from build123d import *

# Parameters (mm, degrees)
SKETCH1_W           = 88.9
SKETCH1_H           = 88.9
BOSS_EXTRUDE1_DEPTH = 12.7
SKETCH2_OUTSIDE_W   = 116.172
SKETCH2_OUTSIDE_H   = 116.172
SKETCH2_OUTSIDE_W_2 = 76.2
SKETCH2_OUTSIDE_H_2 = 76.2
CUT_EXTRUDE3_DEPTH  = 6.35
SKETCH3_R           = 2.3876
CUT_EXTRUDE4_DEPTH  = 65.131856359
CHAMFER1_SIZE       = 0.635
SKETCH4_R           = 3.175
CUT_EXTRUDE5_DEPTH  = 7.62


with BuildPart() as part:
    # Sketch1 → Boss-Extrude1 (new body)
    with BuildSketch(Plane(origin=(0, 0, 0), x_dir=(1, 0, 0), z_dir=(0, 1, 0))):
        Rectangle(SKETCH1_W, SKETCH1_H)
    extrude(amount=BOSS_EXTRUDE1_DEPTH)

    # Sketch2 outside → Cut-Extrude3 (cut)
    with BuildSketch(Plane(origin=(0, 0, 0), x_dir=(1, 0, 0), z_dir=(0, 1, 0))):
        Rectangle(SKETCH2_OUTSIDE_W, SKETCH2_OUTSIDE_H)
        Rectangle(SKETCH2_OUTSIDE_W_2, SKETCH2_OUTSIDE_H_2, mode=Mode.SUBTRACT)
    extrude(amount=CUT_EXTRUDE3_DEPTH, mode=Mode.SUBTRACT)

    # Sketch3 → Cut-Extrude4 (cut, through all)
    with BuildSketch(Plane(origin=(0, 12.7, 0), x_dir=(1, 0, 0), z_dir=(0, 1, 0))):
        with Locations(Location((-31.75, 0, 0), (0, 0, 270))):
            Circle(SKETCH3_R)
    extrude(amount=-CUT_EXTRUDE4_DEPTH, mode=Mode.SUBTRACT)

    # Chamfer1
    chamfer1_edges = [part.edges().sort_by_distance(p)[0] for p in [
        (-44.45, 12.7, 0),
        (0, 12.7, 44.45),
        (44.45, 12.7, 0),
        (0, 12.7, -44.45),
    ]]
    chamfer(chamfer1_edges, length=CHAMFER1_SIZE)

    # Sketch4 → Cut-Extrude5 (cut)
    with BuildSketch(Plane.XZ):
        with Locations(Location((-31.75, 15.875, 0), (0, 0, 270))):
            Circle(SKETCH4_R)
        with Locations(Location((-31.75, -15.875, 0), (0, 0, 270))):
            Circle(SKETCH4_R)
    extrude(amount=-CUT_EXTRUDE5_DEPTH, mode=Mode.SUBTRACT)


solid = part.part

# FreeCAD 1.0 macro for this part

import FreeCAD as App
import Part
import Sketcher
Q = App.Units.Quantity


def edges_at(feature, points):
    """Names of the edges that pass closest to the given points."""
    edges = feature.Shape.Edges
    near = lambda p: min(range(len(edges)), key=lambda i: edges[i].distToShape(Part.Vertex(*p))[0])
    return sorted({f"Edge{near(p) + 1}" for p in points})


def add_polygon(sketch, points):
    """Adds a closed chain of lines whose ends are joined by coincident constraints."""
    first, n = sketch.GeometryCount, len(points)
    for a, b in zip(points, points[1:] + points[:1]):
        sketch.addGeometry(Part.LineSegment(App.Vector(*a, 0), App.Vector(*b, 0)), False)
    for i in range(n):
        sketch.addConstraint(Sketcher.Constraint("Coincident", first + i, 2, first + (i + 1) % n, 1))

doc = App.newDocument("Part")
body = doc.addObject("PartDesign::Body", "Body")

# Sketch on XZ plane
sketch1 = doc.addObject("Sketcher::SketchObject", "Sketch")
body.addObject(sketch1)
sketch1.AttachmentSupport = (doc.XZ_Plane, [""])
sketch1.MapMode = "FlatFace"
add_polygon(sketch1, [(-44.45, -44.45), (-44.45, 44.45), (44.45, 44.45), (44.45, -44.45)])  # lines 0-3
sketch1.addConstraint(Sketcher.Constraint("Vertical", 0))
sketch1.addConstraint(Sketcher.Constraint("Horizontal", 1))
sketch1.addConstraint(Sketcher.Constraint("Vertical", 2))
sketch1.addConstraint(Sketcher.Constraint("Horizontal", 3))
sketch1.addConstraint(Sketcher.Constraint("Symmetric", 0, 2, 2, 2, -1, 1))
sketch1.addConstraint(Sketcher.Constraint("Equal", 3, 0))
sketch1.addConstraint(Sketcher.Constraint("DistanceX", 1, 1, 1, 2, Q("3.5 in")))
pad1 = doc.addObject("PartDesign::Pad", "Pad")
body.addObject(pad1)
pad1.Profile = sketch1
pad1.Length = Q("0.5 in")
pad1.Reversed = True

# Sketch on XZ plane
sketch2 = doc.addObject("Sketcher::SketchObject", "Sketch001")
body.addObject(sketch2)
sketch2.AttachmentSupport = (doc.XZ_Plane, [""])
sketch2.MapMode = "FlatFace"
add_polygon(sketch2, [(-58.086, -58.086), (-58.086, 58.086), (58.086, 58.086), (58.086, -58.086)])  # lines 0-3
add_polygon(sketch2, [(38.1, 38.1), (-38.1, 38.1), (-38.1, -38.1), (38.1, -38.1)])  # lines 4-7
sketch2.addConstraint(Sketcher.Constraint("Vertical", 0))
sketch2.addConstraint(Sketcher.Constraint("Horizontal", 1))
sketch2.addConstraint(Sketcher.Constraint("Vertical", 2))
sketch2.addConstraint(Sketcher.Constraint("Horizontal", 3))
sketch2.addConstraint(Sketcher.Constraint("Horizontal", 4))
sketch2.addConstraint(Sketcher.Constraint("Vertical", 5))
sketch2.addConstraint(Sketcher.Constraint("Horizontal", 6))
sketch2.addConstraint(Sketcher.Constraint("Vertical", 7))
sketch2.addConstraint(Sketcher.Constraint("Symmetric", 0, 2, 2, 2, -1, 1))
sketch2.addConstraint(Sketcher.Constraint("Symmetric", 4, 2, 6, 2, -1, 1))
sketch2.addConstraint(Sketcher.Constraint("Equal", 3, 0))
sketch2.addConstraint(Sketcher.Constraint("Equal", 6, 5))
sketch2.addConstraint(Sketcher.Constraint("DistanceX", 4, 2, 4, 1, Q("3 in")))
sketch2.addConstraint(Sketcher.Constraint("DistanceX", 1, 1, 1, 2, Q("116.172 mm")))
pocket1 = doc.addObject("PartDesign::Pocket", "Pocket")
body.addObject(pocket1)
pocket1.Profile = sketch2
pocket1.Length = Q("0.25 in")

# Sketch on XZ plane
sketch3 = doc.addObject("Sketcher::SketchObject", "Sketch002")
body.addObject(sketch3)
sketch3.AttachmentSupport = (doc.XZ_Plane, [""])
sketch3.MapMode = "FlatFace"
sketch3.AttachmentOffset = App.Placement(App.Vector(0, 0, -0.5 * 25.4), App.Rotation())
sketch3.addGeometry(Part.Circle(App.Vector(-31.75, 0, 0), App.Vector(0, 0, 1), 2.3876), False)
sketch3.addConstraint(Sketcher.Constraint("PointOnObject", 0, 3, -1))
sketch3.addConstraint(Sketcher.Constraint("Diameter", 0, Q("0.188 in")))
sketch3.addConstraint(Sketcher.Constraint("DistanceX", 0, 3, -1, 1, Q("1.25 in")))
pocket2 = doc.addObject("PartDesign::Pocket", "Pocket001")
body.addObject(pocket2)
pocket2.Profile = sketch3
pocket2.Type = "ThroughAll"
pocket2.Reversed = True
doc.recompute()

chamfer = doc.addObject("PartDesign::Chamfer", "Chamfer")
body.addObject(chamfer)
chamfer.Base = (pocket2, edges_at(pocket2, [
    (-44.45, 12.7, 0),
    (0, 12.7, 44.45),
    (44.45, 12.7, 0),
    (0, 12.7, -44.45),
]))
chamfer.Size = Q("0.025 in")

# Sketch on XZ plane
sketch4 = doc.addObject("Sketcher::SketchObject", "Sketch003")
body.addObject(sketch4)
sketch4.AttachmentSupport = (doc.XZ_Plane, [""])
sketch4.MapMode = "FlatFace"
sketch4.addGeometry(Part.Circle(App.Vector(-31.75, 15.875, 0), App.Vector(0, 0, 1), 3.175), False)
sketch4.addGeometry(Part.Circle(App.Vector(-31.75, -15.875, 0), App.Vector(0, 0, 1), 3.175), False)
sketch4.addConstraint(Sketcher.Constraint("Equal", 0, 1))
sketch4.addConstraint(Sketcher.Constraint("Symmetric", 0, 3, 1, 3, -1))
sketch4.addConstraint(Sketcher.Constraint("Diameter", 0, Q("0.25 in")))
sketch4.addConstraint(Sketcher.Constraint("DistanceX", 0, 3, -1, 1, Q("1.25 in")))
sketch4.addConstraint(Sketcher.Constraint("DistanceY", 1, 3, 0, 3, Q("1.25 in")))
pocket3 = doc.addObject("PartDesign::Pocket", "Pocket002")
body.addObject(pocket3)
pocket3.Profile = sketch4
pocket3.Length = Q("0.3 in")

doc.recompute()
